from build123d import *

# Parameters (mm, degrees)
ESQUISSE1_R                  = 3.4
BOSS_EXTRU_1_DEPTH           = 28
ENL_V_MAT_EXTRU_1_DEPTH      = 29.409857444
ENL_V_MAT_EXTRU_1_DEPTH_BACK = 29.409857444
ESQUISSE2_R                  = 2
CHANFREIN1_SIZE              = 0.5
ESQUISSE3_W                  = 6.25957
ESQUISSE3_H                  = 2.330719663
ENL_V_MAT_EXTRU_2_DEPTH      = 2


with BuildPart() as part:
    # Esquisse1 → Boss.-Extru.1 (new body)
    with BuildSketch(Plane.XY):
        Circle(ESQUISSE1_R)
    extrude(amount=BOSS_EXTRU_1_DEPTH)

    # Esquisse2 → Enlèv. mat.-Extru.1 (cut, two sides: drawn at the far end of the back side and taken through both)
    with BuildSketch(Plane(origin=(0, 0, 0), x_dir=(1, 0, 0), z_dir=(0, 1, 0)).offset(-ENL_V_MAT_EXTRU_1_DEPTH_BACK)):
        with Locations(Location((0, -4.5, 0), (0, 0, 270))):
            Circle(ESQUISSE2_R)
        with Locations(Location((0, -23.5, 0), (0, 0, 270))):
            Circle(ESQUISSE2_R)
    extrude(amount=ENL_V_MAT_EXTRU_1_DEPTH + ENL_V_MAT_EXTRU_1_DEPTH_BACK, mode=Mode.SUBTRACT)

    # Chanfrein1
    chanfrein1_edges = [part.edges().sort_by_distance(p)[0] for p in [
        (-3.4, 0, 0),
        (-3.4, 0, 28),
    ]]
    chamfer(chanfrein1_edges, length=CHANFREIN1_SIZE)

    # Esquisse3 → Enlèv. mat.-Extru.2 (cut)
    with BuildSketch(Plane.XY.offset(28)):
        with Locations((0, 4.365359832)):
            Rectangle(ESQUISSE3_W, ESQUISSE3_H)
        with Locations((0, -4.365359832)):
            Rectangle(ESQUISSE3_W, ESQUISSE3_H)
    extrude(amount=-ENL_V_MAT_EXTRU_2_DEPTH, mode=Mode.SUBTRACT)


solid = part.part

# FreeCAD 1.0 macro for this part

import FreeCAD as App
import Part
import Sketcher
from FreeCAD import Vector


def edges_at(feature, points):
    """Names of the edges that pass closest to the given points."""
    edges = feature.Shape.Edges
    near = lambda p: min(range(len(edges)), key=lambda i: edges[i].distToShape(Part.Vertex(*p))[0])
    return sorted({f"Edge{near(p) + 1}" for p in points})

doc = App.newDocument("Part")
params = doc.addObject("Spreadsheet::Sheet", "Params")
for row, (alias, value) in enumerate([
    ("sketch1_diameter", "6.8 mm"),
    ("pad1_length", "28 mm"),
    ("sketch2_diameter", "4 mm"),
    ("chamfer_size", "0.5 mm"),
    ("pocket2_length", "2 mm"),
], start=1):
    params.set(f"A{row}", alias)
    params.set(f"B{row}", "=" + value)
    params.setAlias(f"B{row}", alias)

body = doc.addObject("PartDesign::Body", "Body")

sketch1 = body.newObject("Sketcher::SketchObject", "Sketch")
sketch1.AttachmentSupport = (doc.getObject("XY_Plane"), [""])
sketch1.MapMode = "FlatFace"
sketch1.addGeometry(Part.Circle(Vector(0, 0, 0), Vector(0, 0, 1), 3.4), False)
sketch1.addConstraint([
    Sketcher.Constraint("Coincident", 0, 3, -1, 1),
    Sketcher.Constraint("Diameter", 0, 6.8),
])
sketch1.setExpression("Constraints[1]", "Params.sketch1_diameter")
pad1 = body.newObject("PartDesign::Pad", "Pad")
pad1.Profile = sketch1
pad1.setExpression("Length", "Params.pad1_length")

sketch2 = body.newObject("Sketcher::SketchObject", "Sketch001")
sketch2.AttachmentSupport = (doc.getObject("XZ_Plane"), [""])
sketch2.MapMode = "FlatFace"
sketch2.addGeometry([
    Part.Circle(Vector(0, 4.5, 0), Vector(0, 0, 1), 2),
    Part.Circle(Vector(0, 23.5, 0), Vector(0, 0, 1), 2),
], False)
sketch2.addConstraint([
    Sketcher.Constraint("Equal", 0, 1),
    Sketcher.Constraint("PointOnObject", 0, 3, -2),
    Sketcher.Constraint("PointOnObject", 1, 3, -2),
    Sketcher.Constraint("Diameter", 0, 4.0),
    Sketcher.Constraint("DistanceY", 0, 3, 1, 3, 19.0),
    Sketcher.Constraint("DistanceY", -1, 1, 0, 3, 4.5),
])
sketch2.setExpression("Constraints[3]", "Params.sketch2_diameter")
pocket1 = body.newObject("PartDesign::Pocket", "Pocket")
pocket1.Profile = sketch2
pocket1.Type = "ThroughAll"
pocket1.Midplane = True
doc.recompute()

chamfer = body.newObject("PartDesign::Chamfer", "Chamfer")
chamfer.Base = (pocket1, edges_at(pocket1, [(-3.4, 0, 0), (-3.4, 0, 28)]))
chamfer.setExpression("Size", "Params.chamfer_size")

sketch3 = body.newObject("Sketcher::SketchObject", "Sketch002")
sketch3.AttachmentSupport = (doc.getObject("XY_Plane"), [""])
sketch3.MapMode = "FlatFace"
sketch3.AttachmentOffset = App.Placement(Vector(0, 0, 28), App.Rotation())
sketch3.addGeometry([
    Part.LineSegment(Vector(-3.1, 5.5, 0), Vector(-3.1, 3.2, 0)),
    Part.LineSegment(Vector(-3.1, 3.2, 0), Vector(3.1, 3.2, 0)),
    Part.LineSegment(Vector(3.1, 3.2, 0), Vector(3.1, 5.5, 0)),
    Part.LineSegment(Vector(3.1, 5.5, 0), Vector(-3.1, 5.5, 0)),
    Part.LineSegment(Vector(-3.1, -3.2, 0), Vector(-3.1, -5.5, 0)),
    Part.LineSegment(Vector(-3.1, -5.5, 0), Vector(3.1, -5.5, 0)),
    Part.LineSegment(Vector(3.1, -5.5, 0), Vector(3.1, -3.2, 0)),
    Part.LineSegment(Vector(3.1, -3.2, 0), Vector(-3.1, -3.2, 0)),
], False)
sketch3.addConstraint([
    Sketcher.Constraint("Coincident", 0, 2, 1, 1),
    Sketcher.Constraint("Coincident", 1, 2, 2, 1),
    Sketcher.Constraint("Coincident", 2, 2, 3, 1),
    Sketcher.Constraint("Coincident", 3, 2, 0, 1),
    Sketcher.Constraint("Coincident", 4, 2, 5, 1),
    Sketcher.Constraint("Coincident", 5, 2, 6, 1),
    Sketcher.Constraint("Coincident", 6, 2, 7, 1),
    Sketcher.Constraint("Coincident", 7, 2, 4, 1),
    Sketcher.Constraint("Vertical", 0),
    Sketcher.Constraint("Horizontal", 1),
    Sketcher.Constraint("Vertical", 2),
    Sketcher.Constraint("Horizontal", 3),
    Sketcher.Constraint("Vertical", 4),
    Sketcher.Constraint("Horizontal", 5),
    Sketcher.Constraint("Vertical", 6),
    Sketcher.Constraint("Horizontal", 7),
    Sketcher.Constraint("Symmetric", 2, 2, 4, 2, -1, 1),
    Sketcher.Constraint("Symmetric", 0, 2, 6, 2, -1, 1),
    Sketcher.Constraint("Vertical", 3, 2, 4, 2),
    Sketcher.Constraint("DistanceY", -1, 1, 0, 2, 3.2),
    Sketcher.Constraint("DistanceX", 1, 1, 1, 2, 6.25957),
    Sketcher.Constraint("DistanceY", 0, 2, 0, 1, 2.33072),
])
pocket2 = body.newObject("PartDesign::Pocket", "Pocket001")
pocket2.Profile = sketch3
pocket2.setExpression("Length", "Params.pocket2_length")

doc.recompute()
